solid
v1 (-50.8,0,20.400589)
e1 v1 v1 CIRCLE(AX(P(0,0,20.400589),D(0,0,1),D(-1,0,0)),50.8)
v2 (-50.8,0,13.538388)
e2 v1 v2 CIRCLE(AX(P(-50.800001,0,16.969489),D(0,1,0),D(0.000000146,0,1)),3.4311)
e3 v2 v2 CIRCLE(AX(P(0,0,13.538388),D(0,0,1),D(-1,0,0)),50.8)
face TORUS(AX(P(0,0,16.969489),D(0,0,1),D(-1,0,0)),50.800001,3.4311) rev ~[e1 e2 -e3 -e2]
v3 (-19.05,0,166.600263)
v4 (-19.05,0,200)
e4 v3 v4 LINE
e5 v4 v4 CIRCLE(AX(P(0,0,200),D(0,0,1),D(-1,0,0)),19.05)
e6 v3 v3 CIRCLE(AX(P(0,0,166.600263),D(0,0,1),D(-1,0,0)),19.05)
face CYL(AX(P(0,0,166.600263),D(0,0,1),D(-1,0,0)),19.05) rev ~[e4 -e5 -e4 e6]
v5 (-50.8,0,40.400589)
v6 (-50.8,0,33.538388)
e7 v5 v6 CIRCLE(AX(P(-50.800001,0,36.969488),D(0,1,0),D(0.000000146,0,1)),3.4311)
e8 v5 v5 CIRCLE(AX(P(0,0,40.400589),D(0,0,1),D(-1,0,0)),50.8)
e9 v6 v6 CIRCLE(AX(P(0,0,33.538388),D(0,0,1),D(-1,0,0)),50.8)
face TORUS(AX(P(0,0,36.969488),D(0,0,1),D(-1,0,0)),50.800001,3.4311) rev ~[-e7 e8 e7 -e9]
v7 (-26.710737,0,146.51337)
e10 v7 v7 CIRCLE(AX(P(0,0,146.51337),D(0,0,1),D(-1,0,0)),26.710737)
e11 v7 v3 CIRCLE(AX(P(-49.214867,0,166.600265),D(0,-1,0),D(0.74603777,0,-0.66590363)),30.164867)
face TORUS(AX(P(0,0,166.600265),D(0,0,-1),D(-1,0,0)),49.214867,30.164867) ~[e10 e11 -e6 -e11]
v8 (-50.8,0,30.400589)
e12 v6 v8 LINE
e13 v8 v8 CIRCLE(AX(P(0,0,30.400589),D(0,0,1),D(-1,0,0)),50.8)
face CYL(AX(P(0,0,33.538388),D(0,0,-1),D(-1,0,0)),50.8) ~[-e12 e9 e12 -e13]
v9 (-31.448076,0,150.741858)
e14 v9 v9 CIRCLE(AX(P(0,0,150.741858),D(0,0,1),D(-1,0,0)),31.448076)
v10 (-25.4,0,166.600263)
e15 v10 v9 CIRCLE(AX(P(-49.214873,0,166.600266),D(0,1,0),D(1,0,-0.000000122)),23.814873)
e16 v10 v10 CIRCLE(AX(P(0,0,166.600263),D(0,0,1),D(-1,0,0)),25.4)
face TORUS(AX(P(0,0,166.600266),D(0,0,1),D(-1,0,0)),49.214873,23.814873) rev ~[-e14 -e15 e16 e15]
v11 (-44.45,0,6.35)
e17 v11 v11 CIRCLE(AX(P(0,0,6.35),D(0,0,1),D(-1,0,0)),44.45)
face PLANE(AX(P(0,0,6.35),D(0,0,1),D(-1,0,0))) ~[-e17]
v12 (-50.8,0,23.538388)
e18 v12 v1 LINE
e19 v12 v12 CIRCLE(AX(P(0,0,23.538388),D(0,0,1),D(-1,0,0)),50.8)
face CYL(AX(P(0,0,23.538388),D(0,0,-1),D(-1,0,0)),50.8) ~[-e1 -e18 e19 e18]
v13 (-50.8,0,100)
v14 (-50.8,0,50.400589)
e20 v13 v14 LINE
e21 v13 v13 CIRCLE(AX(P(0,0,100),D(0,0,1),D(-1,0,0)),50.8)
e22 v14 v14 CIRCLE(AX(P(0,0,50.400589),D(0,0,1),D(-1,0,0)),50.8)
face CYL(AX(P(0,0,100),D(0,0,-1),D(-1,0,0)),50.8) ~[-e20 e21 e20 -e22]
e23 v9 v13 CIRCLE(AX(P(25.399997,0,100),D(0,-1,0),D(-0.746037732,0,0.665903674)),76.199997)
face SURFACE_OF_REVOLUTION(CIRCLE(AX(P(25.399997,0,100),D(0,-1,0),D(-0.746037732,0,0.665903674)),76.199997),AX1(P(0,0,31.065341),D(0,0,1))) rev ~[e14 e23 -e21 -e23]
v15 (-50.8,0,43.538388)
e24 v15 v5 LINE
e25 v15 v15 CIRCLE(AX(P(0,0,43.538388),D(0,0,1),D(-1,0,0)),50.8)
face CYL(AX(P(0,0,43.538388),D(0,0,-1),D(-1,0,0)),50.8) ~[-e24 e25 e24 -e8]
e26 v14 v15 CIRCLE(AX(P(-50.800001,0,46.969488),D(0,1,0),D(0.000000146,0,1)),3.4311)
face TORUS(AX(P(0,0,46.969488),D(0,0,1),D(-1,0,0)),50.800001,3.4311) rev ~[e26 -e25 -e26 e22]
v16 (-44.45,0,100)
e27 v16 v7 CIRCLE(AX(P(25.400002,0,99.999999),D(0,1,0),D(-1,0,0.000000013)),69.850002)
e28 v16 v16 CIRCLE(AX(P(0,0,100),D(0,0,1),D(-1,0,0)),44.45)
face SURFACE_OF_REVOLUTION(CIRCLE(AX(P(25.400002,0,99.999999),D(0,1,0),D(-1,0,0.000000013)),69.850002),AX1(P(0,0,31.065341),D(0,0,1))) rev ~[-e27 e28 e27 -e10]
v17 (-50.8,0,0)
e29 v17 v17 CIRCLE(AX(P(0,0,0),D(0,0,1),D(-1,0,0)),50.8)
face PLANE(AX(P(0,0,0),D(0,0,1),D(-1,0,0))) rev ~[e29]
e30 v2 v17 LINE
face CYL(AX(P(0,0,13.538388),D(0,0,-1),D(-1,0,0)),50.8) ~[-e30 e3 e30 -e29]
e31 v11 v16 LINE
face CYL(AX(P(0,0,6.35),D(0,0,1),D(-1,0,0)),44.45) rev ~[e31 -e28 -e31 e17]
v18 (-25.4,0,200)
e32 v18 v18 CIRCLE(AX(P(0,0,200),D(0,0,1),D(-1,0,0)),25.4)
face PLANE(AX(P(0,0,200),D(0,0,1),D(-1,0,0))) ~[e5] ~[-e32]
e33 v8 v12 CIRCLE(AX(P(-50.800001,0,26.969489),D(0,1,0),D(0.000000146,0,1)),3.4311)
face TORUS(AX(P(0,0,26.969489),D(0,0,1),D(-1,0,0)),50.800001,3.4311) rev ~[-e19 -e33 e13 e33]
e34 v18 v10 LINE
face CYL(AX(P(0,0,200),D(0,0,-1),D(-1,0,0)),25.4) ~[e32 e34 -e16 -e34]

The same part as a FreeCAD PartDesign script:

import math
import FreeCAD as App
import Part
import Sketcher
Q = App.Units.Quantity

doc = App.newDocument("Part")
params = doc.addObject("Spreadsheet::Sheet", "Params")
for row, (alias, value) in enumerate([
    ("sketch1_radius", "2.9999999 in"),
    ("sketch1_width", "2 in"),
    ("sketch1_radius2", "2.7500001 in"),
    ("revolution_angle", "360 deg"),
], start=1):
    params.set(f"A{row}", alias)
    params.set(f"B{row}", "=" + value)
    params.setAlias(f"B{row}", alias)

body = doc.addObject("PartDesign::Body", "Body")

# Sketch on XZ plane
sketch1 = body.newObject("Sketcher::SketchObject", "Sketch")
sketch1.AttachmentSupport = (doc.getObject("XZ_Plane"), [""])
sketch1.MapMode = "FlatFace"
sketch1.addGeometry([
    Part.LineSegment(App.Vector(-44.5, 6.3, 0), App.Vector(-44.5, 100, 0)),  # 0
    Part.ArcOfCircle(Part.Circle(App.Vector(25.4, 100, 0), App.Vector(0, 0, 1), 69.9), math.radians(138), math.radians(180)),  # 1
    Part.ArcOfCircle(Part.Circle(App.Vector(-49.2, 166.6, 0), App.Vector(0, 0, 1), 30.2), math.radians(-42), math.radians(0)),  # 2
    Part.LineSegment(App.Vector(-19.1, 166.6, 0), App.Vector(-19.1, 200, 0)),  # 3
    Part.LineSegment(App.Vector(-19.1, 200, 0), App.Vector(-25.4, 200, 0)),  # 4
    Part.LineSegment(App.Vector(-25.4, 200, 0), App.Vector(-25.4, 166.6, 0)),  # 5
    Part.ArcOfCircle(Part.Circle(App.Vector(-49.2, 166.6, 0), App.Vector(0, 0, 1), 23.8), math.radians(-42), math.radians(0)),  # 6
    Part.ArcOfCircle(Part.Circle(App.Vector(25.4, 100, 0), App.Vector(0, 0, 1), 76.2), math.radians(138), math.radians(180)),  # 7
    Part.LineSegment(App.Vector(-50.8, 100, 0), App.Vector(-50.8, 50.4, 0)),  # 8
    Part.ArcOfCircle(Part.Circle(App.Vector(-50.8, 47, 0), App.Vector(0, 0, 1), 3.4), math.radians(-90), math.radians(90)),  # 9
    Part.LineSegment(App.Vector(-50.8, 43.5, 0), App.Vector(-50.8, 40.4, 0)),  # 10
    Part.ArcOfCircle(Part.Circle(App.Vector(-50.8, 37, 0), App.Vector(0, 0, 1), 3.4), math.radians(-90), math.radians(90)),  # 11
    Part.LineSegment(App.Vector(-50.8, 33.5, 0), App.Vector(-50.8, 30.4, 0)),  # 12
    Part.ArcOfCircle(Part.Circle(App.Vector(-50.8, 27, 0), App.Vector(0, 0, 1), 3.4), math.radians(-90), math.radians(90)),  # 13
    Part.LineSegment(App.Vector(-50.8, 23.5, 0), App.Vector(-50.8, 20.4, 0)),  # 14
    Part.ArcOfCircle(Part.Circle(App.Vector(-50.8, 17, 0), App.Vector(0, 0, 1), 3.4), math.radians(-90), math.radians(90)),  # 15
    Part.LineSegment(App.Vector(-50.8, 13.5, 0), App.Vector(-50.8, 0, 0)),  # 16
    Part.LineSegment(App.Vector(-50.8, 0, 0), App.Vector(0, 0, 0)),  # 17
    Part.LineSegment(App.Vector(0, 0, 0), App.Vector(0, 6.3, 0)),  # 18
    Part.LineSegment(App.Vector(0, 6.3, 0), App.Vector(-44.5, 6.3, 0)),  # 19
], False)
sketch1.addConstraint([
    Sketcher.Constraint("Tangent", 0, 2, 1, 2),
    Sketcher.Constraint("Tangent", 1, 1, 2, 1),
    Sketcher.Constraint("Tangent", 2, 2, 3, 1),
    Sketcher.Constraint("Coincident", 3, 2, 4, 1),
    Sketcher.Constraint("Coincident", 4, 2, 5, 1),
    Sketcher.Constraint("Tangent", 5, 2, 6, 2),
    Sketcher.Constraint("Tangent", 6, 1, 7, 1),
    Sketcher.Constraint("Tangent", 7, 2, 8, 1),
    Sketcher.Constraint("Coincident", 8, 2, 9, 2),
    Sketcher.Constraint("Coincident", 9, 1, 10, 1),
    Sketcher.Constraint("Coincident", 10, 2, 11, 2),
    Sketcher.Constraint("Coincident", 11, 1, 12, 1),
    Sketcher.Constraint("Coincident", 12, 2, 13, 2),
    Sketcher.Constraint("Coincident", 13, 1, 14, 1),
    Sketcher.Constraint("Coincident", 14, 2, 15, 2),
    Sketcher.Constraint("Coincident", 15, 1, 16, 1),
    Sketcher.Constraint("Coincident", 16, 2, 17, 1),
    Sketcher.Constraint("Coincident", 17, 2, 18, 1),
    Sketcher.Constraint("Coincident", 18, 2, 19, 1),
    Sketcher.Constraint("Coincident", 19, 2, 0, 1),
    Sketcher.Constraint("Vertical", 0),
    Sketcher.Constraint("Vertical", 3),
    Sketcher.Constraint("Horizontal", 4),
    Sketcher.Constraint("Vertical", 5),
    Sketcher.Constraint("Vertical", 8),
    Sketcher.Constraint("Vertical", 10),
    Sketcher.Constraint("Vertical", 12),
    Sketcher.Constraint("Vertical", 14),
    Sketcher.Constraint("Vertical", 16),
    Sketcher.Constraint("Horizontal", 17),
    Sketcher.Constraint("Vertical", 18),
    Sketcher.Constraint("Horizontal", 19),
    Sketcher.Constraint("Coincident", 17, 2, -1, 1),
    Sketcher.Constraint("Coincident", 6, 3, 2, 3),
    Sketcher.Constraint("Coincident", 7, 3, 1, 3),
    Sketcher.Constraint("Equal", 9, 11),
    Sketcher.Constraint("Equal", 11, 13),
    Sketcher.Constraint("Equal", 13, 15),
    Sketcher.Constraint("Vertical", 9, 3, 11, 3),
    Sketcher.Constraint("Vertical", 11, 3, 13, 3),
    Sketcher.Constraint("Vertical", 13, 3, 15, 3),
    Sketcher.Constraint("Vertical", 15, 3, 7, 2),
    Sketcher.Constraint("Vertical", 8, 2, 9, 1),
    Sketcher.Constraint("Vertical", 10, 2, 11, 1),
    Sketcher.Constraint("Vertical", 12, 2, 13, 1),
    Sketcher.Constraint("Vertical", 14, 2, 15, 1),
    Sketcher.Constraint("Equal", 10, 12),
    Sketcher.Constraint("Equal", 12, 14),
    Sketcher.Constraint("Equal", 4, 18),
    Sketcher.Constraint("Radius", 7, Q("2.9999999 in")),
    Sketcher.Constraint("DistanceX", 17, 1, 17, 2, Q("2 in")),
    Sketcher.Constraint("Radius", 1, Q("2.7500001 in")),
    Sketcher.Constraint("DistanceX", 4, 2, -1, 1, Q("1 in")),
    Sketcher.Constraint("Radius", 9, Q("3.4311 mm")),
    Sketcher.Constraint("DistanceY", 0, 1, 0, 2, Q("93.65 mm")),
    Sketcher.Constraint("DistanceY", 10, 2, 10, 1, Q("3.137799 mm")),
    Sketcher.Constraint("Radius", 2, Q("30.164867 mm")),
    Sketcher.Constraint("DistanceY", 8, 2, 8, 1, Q("49.599411 mm")),
    Sketcher.Constraint("DistanceY", -1, 1, 3, 2, Q("200 mm")),
])
sketch1.setExpression("Constraints[49]", "Params.sketch1_radius")
sketch1.setExpression("Constraints[50]", "Params.sketch1_width")
sketch1.setExpression("Constraints[51]", "Params.sketch1_radius2")
revolution = body.newObject("PartDesign::Revolution", "Revolution")
revolution.Profile = sketch1
revolution.ReferenceAxis = (sketch1, ["V_Axis"])
revolution.setExpression("Angle", "Params.revolution_angle")

doc.recompute()
